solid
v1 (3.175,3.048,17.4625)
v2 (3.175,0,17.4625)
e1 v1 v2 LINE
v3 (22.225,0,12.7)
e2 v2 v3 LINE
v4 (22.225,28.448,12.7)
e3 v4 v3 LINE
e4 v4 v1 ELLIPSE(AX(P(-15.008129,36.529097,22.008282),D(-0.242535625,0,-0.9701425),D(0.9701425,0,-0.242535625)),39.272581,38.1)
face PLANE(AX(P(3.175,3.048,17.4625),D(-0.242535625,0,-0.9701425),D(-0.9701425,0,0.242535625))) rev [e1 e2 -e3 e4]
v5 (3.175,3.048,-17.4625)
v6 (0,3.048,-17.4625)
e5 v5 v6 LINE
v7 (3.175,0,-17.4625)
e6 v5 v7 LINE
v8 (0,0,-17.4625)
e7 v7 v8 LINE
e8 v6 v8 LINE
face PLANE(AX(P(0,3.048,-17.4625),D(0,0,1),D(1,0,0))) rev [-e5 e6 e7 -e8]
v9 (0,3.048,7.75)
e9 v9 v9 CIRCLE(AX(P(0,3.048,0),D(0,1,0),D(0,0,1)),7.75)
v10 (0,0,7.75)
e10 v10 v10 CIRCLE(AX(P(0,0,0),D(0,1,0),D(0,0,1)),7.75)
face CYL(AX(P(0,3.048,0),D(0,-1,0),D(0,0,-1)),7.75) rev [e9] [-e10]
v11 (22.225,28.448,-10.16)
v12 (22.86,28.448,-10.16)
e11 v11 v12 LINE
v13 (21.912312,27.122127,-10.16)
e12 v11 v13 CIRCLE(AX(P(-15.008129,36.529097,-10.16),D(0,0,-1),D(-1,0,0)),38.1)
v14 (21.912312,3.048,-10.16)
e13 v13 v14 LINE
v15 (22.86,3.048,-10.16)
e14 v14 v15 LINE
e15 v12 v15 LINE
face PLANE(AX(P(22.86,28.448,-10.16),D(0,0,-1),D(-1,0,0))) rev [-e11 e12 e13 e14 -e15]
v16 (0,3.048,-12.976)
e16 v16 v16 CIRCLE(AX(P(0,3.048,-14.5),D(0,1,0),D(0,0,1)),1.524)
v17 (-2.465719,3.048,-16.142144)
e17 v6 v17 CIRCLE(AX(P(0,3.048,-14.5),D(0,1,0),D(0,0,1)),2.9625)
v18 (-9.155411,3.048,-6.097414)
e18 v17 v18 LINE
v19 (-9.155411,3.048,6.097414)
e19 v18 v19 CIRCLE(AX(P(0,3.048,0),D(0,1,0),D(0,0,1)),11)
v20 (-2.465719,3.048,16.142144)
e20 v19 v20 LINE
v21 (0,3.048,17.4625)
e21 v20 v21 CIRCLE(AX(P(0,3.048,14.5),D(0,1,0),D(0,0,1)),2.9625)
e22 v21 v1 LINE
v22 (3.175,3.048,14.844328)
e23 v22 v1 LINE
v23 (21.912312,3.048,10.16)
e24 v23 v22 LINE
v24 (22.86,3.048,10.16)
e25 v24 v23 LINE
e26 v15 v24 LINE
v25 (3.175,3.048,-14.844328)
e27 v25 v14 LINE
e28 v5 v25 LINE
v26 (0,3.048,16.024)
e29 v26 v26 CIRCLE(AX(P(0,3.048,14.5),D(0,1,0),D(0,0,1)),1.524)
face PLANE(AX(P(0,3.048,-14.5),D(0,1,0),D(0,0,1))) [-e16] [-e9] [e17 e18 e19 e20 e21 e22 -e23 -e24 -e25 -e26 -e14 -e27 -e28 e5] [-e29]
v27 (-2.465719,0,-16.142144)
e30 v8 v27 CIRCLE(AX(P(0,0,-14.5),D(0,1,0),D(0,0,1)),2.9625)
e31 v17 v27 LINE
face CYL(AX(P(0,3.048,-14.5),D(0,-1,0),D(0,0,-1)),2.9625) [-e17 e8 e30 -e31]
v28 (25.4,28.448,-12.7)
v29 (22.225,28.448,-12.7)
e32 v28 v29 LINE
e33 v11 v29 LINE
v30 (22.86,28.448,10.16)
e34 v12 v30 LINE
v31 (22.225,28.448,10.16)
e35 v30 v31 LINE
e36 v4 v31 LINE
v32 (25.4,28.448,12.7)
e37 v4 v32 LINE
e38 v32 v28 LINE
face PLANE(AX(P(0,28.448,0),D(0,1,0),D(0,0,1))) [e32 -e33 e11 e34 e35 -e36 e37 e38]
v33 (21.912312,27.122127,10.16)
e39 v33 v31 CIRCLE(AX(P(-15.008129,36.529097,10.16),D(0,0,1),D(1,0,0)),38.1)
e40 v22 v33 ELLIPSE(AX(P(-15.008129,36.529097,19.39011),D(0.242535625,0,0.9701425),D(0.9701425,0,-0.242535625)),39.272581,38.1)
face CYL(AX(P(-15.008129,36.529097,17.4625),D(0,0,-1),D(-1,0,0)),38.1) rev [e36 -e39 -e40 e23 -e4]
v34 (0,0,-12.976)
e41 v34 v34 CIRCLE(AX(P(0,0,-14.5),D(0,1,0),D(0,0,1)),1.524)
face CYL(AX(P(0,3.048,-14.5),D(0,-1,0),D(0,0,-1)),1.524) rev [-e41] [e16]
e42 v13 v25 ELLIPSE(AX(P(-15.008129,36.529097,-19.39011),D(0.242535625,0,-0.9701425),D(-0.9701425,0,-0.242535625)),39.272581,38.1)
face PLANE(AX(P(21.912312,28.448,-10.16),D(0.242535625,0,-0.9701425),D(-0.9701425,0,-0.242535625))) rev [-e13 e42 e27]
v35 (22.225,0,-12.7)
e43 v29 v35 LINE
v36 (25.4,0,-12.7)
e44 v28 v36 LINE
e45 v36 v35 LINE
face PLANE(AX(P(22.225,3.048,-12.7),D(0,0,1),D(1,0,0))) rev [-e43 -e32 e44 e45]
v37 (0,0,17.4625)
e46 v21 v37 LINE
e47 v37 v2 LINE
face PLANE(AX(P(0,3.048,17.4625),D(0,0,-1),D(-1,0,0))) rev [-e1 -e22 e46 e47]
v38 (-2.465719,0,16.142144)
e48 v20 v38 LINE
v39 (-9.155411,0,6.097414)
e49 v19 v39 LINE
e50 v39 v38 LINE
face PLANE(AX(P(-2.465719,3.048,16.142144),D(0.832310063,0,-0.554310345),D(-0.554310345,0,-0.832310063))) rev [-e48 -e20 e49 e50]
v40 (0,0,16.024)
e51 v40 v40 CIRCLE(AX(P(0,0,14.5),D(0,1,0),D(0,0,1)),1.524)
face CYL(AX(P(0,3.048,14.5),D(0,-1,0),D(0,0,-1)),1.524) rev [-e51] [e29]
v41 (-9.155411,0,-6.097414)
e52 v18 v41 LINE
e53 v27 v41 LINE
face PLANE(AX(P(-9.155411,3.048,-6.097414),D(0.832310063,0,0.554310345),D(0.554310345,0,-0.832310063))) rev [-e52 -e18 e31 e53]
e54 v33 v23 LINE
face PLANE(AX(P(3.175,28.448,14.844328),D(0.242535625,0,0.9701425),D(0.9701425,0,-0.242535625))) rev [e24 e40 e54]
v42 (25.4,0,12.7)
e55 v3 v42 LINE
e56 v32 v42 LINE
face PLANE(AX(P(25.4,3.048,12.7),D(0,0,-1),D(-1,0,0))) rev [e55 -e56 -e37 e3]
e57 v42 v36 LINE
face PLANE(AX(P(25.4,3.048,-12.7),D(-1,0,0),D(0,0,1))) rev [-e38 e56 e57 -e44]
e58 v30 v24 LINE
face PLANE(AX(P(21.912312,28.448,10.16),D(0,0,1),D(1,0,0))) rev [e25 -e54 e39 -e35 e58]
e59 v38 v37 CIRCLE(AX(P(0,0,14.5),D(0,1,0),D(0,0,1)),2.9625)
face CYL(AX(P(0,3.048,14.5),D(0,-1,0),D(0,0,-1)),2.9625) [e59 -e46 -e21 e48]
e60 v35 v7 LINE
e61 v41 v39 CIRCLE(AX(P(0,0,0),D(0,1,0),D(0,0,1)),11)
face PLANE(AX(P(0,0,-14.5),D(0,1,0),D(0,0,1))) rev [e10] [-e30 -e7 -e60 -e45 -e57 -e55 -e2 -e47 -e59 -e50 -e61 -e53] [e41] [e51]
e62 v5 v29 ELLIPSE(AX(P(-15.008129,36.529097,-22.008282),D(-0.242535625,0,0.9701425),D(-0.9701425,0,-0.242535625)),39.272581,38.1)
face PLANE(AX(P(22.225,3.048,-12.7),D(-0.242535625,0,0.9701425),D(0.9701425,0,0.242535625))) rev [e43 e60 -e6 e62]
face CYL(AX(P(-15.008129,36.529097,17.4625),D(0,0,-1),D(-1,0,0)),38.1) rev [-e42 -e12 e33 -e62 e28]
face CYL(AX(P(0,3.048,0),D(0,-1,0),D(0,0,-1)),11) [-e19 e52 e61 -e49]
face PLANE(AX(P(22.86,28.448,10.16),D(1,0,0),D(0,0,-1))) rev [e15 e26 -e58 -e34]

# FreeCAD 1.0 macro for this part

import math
import FreeCAD as App
import Part
import Sketcher
Q = App.Units.Quantity


def add_polygon(sketch, points):
    """Adds a closed chain of lines whose ends are joined by coincident constraints."""
    first, n = sketch.GeometryCount, len(points)
    for a, b in zip(points, points[1:] + points[:1]):
        sketch.addGeometry(Part.LineSegment(App.Vector(*a, 0), App.Vector(*b, 0)), False)
    for i in range(n):
        sketch.addConstraint(Sketcher.Constraint("Coincident", first + i, 2, first + (i + 1) % n, 1))

doc = App.newDocument("Part")
body = doc.addObject("PartDesign::Body", "Body")

# Sketch on XZ plane
sketch1 = doc.addObject("Sketcher::SketchObject", "Sketch")
body.addObject(sketch1)
sketch1.AttachmentSupport = (doc.XZ_Plane, [""])
sketch1.MapMode = "FlatFace"
sketch1.addGeometry(Part.LineSegment(App.Vector(25.4, 12.7, 0), App.Vector(25.4, -12.7, 0)), False)
sketch1.addGeometry(Part.LineSegment(App.Vector(25.4, -12.7, 0), App.Vector(22.225, -12.7, 0)), False)
sketch1.addGeometry(Part.LineSegment(App.Vector(22.225, -12.7, 0), App.Vector(3.175, -17.4625, 0)), False)
sketch1.addGeometry(Part.LineSegment(App.Vector(3.175, -17.4625, 0), App.Vector(0, -17.4625, 0)), False)
sketch1.addGeometry(Part.ArcOfCircle(Part.Circle(App.Vector(0, -14.5, 0), App.Vector(0, 0, 1), 2.9625), math.radians(-146.336774), math.radians(-90)), False)
sketch1.addGeometry(Part.LineSegment(App.Vector(-2.465719, -16.142144, 0), App.Vector(-9.155411, -6.097414, 0)), False)
sketch1.addGeometry(Part.ArcOfCircle(Part.Circle(App.Vector(0, 0, 0), App.Vector(0, 0, 1), 11), math.radians(146.336774), math.radians(213.663226)), False)
sketch1.addGeometry(Part.LineSegment(App.Vector(-9.155411, 6.097414, 0), App.Vector(-2.465719, 16.142144, 0)), False)
sketch1.addGeometry(Part.ArcOfCircle(Part.Circle(App.Vector(0, 14.5, 0), App.Vector(0, 0, 1), 2.9625), math.radians(90), math.radians(146.336774)), False)
sketch1.addGeometry(Part.LineSegment(App.Vector(0, 17.4625, 0), App.Vector(3.175, 17.4625, 0)), False)
sketch1.addGeometry(Part.LineSegment(App.Vector(3.175, 17.4625, 0), App.Vector(22.225, 12.7, 0)), False)
sketch1.addGeometry(Part.LineSegment(App.Vector(22.225, 12.7, 0), App.Vector(25.4, 12.7, 0)), False)
sketch1.addGeometry(Part.Circle(App.Vector(0, 14.5, 0), App.Vector(0, 0, 1), 1.524), False)
sketch1.addGeometry(Part.Circle(App.Vector(0, 0, 0), App.Vector(0, 0, 1), 7.75), False)
sketch1.addGeometry(Part.Circle(App.Vector(0, -14.5, 0), App.Vector(0, 0, 1), 1.524), False)
sketch1.addConstraint(Sketcher.Constraint("Coincident", 0, 2, 1, 1))
sketch1.addConstraint(Sketcher.Constraint("Coincident", 1, 2, 2, 1))
sketch1.addConstraint(Sketcher.Constraint("Coincident", 2, 2, 3, 1))
sketch1.addConstraint(Sketcher.Constraint("Tangent", 3, 2, 4, 2))
sketch1.addConstraint(Sketcher.Constraint("Tangent", 4, 1, 5, 1))
sketch1.addConstraint(Sketcher.Constraint("Tangent", 5, 2, 6, 2))
sketch1.addConstraint(Sketcher.Constraint("Tangent", 6, 1, 7, 1))
sketch1.addConstraint(Sketcher.Constraint("Tangent", 7, 2, 8, 2))
sketch1.addConstraint(Sketcher.Constraint("Tangent", 8, 1, 9, 1))
sketch1.addConstraint(Sketcher.Constraint("Coincident", 9, 2, 10, 1))
sketch1.addConstraint(Sketcher.Constraint("Coincident", 10, 2, 11, 1))
sketch1.addConstraint(Sketcher.Constraint("Coincident", 11, 2, 0, 1))
sketch1.addConstraint(Sketcher.Constraint("Vertical", 0))
sketch1.addConstraint(Sketcher.Constraint("Horizontal", 1))
sketch1.addConstraint(Sketcher.Constraint("Horizontal", 3))
sketch1.addConstraint(Sketcher.Constraint("Horizontal", 9))
sketch1.addConstraint(Sketcher.Constraint("Horizontal", 11))
sketch1.addConstraint(Sketcher.Constraint("Coincident", 6, 3, -1, 1))
sketch1.addConstraint(Sketcher.Constraint("Coincident", 13, 3, -1, 1))
sketch1.addConstraint(Sketcher.Constraint("Coincident", 12, 3, 8, 3))
sketch1.addConstraint(Sketcher.Constraint("Coincident", 14, 3, 4, 3))
sketch1.addConstraint(Sketcher.Constraint("Equal", 4, 8))
sketch1.addConstraint(Sketcher.Constraint("Equal", 12, 14))
sketch1.addConstraint(Sketcher.Constraint("Symmetric", 4, 3, 8, 3, -1, 1))
sketch1.addConstraint(Sketcher.Constraint("Symmetric", 1, 2, 10, 2, -1))
sketch1.addConstraint(Sketcher.Constraint("PointOnObject", 4, 3, -2))
sketch1.addConstraint(Sketcher.Constraint("Vertical", 2, 2, 9, 2))
sketch1.addConstraint(Sketcher.Constraint("Equal", 1, 3))
sketch1.addConstraint(Sketcher.Constraint("Diameter", 12, Q("0.12 in")))
sketch1.addConstraint(Sketcher.Constraint("DistanceY", 0, 2, 0, 1, Q("1 in")))
sketch1.addConstraint(Sketcher.Constraint("DistanceX", -1, 1, 0, 2, Q("1 in")))
sketch1.addConstraint(Sketcher.Constraint("Diameter", 13, Q("15.5 mm")))
sketch1.addConstraint(Sketcher.Constraint("DistanceX", 1, 2, 1, 1, Q("0.125 in")))
sketch1.addConstraint(Sketcher.Constraint("Radius", 4, Q("2.9625 mm")))
sketch1.addConstraint(Sketcher.Constraint("Radius", 6, Q("11 mm")))
sketch1.addConstraint(Sketcher.Constraint("DistanceY", 2, 2, -1, 1, Q("0.6875 in")))
pad1 = doc.addObject("PartDesign::Pad", "Pad")
body.addObject(pad1)
pad1.Profile = sketch1
pad1.Length = Q("0.12 in")
pad1.Reversed = True

# Sketch on XZ plane
sketch2 = doc.addObject("Sketcher::SketchObject", "Sketch001")
body.addObject(sketch2)
sketch2.AttachmentSupport = (doc.XZ_Plane, [""])
sketch2.MapMode = "FlatFace"
sketch2.AttachmentOffset = App.Placement(App.Vector(0, 0, -0.12 * 25.4), App.Rotation())
add_polygon(sketch2, [(3.175, -17.4625), (3.175, -14.844328), (21.912312, -10.16), (22.86, -10.16), (22.86, 10.16), (21.912312, 10.16), (3.175, 14.844328), (3.175, 17.4625), (22.225, 12.7), (25.4, 12.7), (25.4, -12.7), (22.225, -12.7)])  # lines 0-11
sketch2.addConstraint(Sketcher.Constraint("Vertical", 0))
sketch2.addConstraint(Sketcher.Constraint("Horizontal", 2))
sketch2.addConstraint(Sketcher.Constraint("Vertical", 3))
sketch2.addConstraint(Sketcher.Constraint("Horizontal", 4))
sketch2.addConstraint(Sketcher.Constraint("Vertical", 6))
sketch2.addConstraint(Sketcher.Constraint("Horizontal", 8))
sketch2.addConstraint(Sketcher.Constraint("Vertical", 9))
sketch2.addConstraint(Sketcher.Constraint("Horizontal", 10))
sketch2.addConstraint(Sketcher.Constraint("Symmetric", 1, 2, 4, 2, -1))
sketch2.addConstraint(Sketcher.Constraint("Symmetric", 0, 2, 5, 2, -1))
sketch2.addConstraint(Sketcher.Constraint("Symmetric", 7, 2, 10, 2, -1))
sketch2.addConstraint(Sketcher.Constraint("Parallel", 5, 7))
sketch2.addConstraint(Sketcher.Constraint("Parallel", 1, 11))
sketch2.addConstraint(Sketcher.Constraint("DistanceY", 9, 2, 9, 1, Q("1 in")))
sketch2.addConstraint(Sketcher.Constraint("DistanceY", 3, 1, 3, 2, Q("0.8 in")))
sketch2.addConstraint(Sketcher.Constraint("DistanceX", -1, 1, 8, 2, Q("1 in")))
sketch2.addConstraint(Sketcher.Constraint("DistanceX", -1, 1, 2, 2, Q("0.9 in")))
sketch2.addConstraint(Sketcher.Constraint("DistanceX", 8, 1, 8, 2, Q("0.125 in")))
sketch2.addConstraint(Sketcher.Constraint("DistanceX", 5, 2, 7, 2, Q("0.75 in")))
sketch2.addConstraint(Sketcher.Constraint("DistanceY", -1, 1, 6, 2, Q("0.6875 in")))
sketch2.addConstraint(Sketcher.Constraint("DistanceX", 2, 1, 2, 2, Q("0.947688 mm")))
pad2 = doc.addObject("PartDesign::Pad", "Pad001")
body.addObject(pad2)
pad2.Profile = sketch2
pad2.Length = Q("1 in")
pad2.Reversed = True

# Sketch on XY plane
sketch3 = doc.addObject("Sketcher::SketchObject", "Sketch002")
body.addObject(sketch3)
sketch3.AttachmentSupport = (doc.XY_Plane, [""])
sketch3.MapMode = "FlatFace"
sketch3.AttachmentOffset = App.Placement(App.Vector(0, 0, -0.6875 * 25.4), App.Rotation())
sketch3.addGeometry(Part.LineSegment(App.Vector(3.175, 28.448, 0), App.Vector(22.225, 28.448, 0)), False)
sketch3.addGeometry(Part.ArcOfCircle(Part.Circle(App.Vector(-15.008129, 36.529097, 0), App.Vector(0, 0, 1), 38.1), math.radians(-61.494216), math.radians(-12.245579)), False)
sketch3.addGeometry(Part.LineSegment(App.Vector(3.175, 3.048, 0), App.Vector(3.175, 28.448, 0)), False)
sketch3.addConstraint(Sketcher.Constraint("Coincident", 0, 2, 1, 2))
sketch3.addConstraint(Sketcher.Constraint("Coincident", 1, 1, 2, 1))
sketch3.addConstraint(Sketcher.Constraint("Coincident", 2, 2, 0, 1))
sketch3.addConstraint(Sketcher.Constraint("Horizontal", 0))
sketch3.addConstraint(Sketcher.Constraint("Vertical", 2))
sketch3.addConstraint(Sketcher.Constraint("Radius", 1, Q("1.5 in")))
sketch3.addConstraint(Sketcher.Constraint("DistanceY", 2, 1, 2, 2, Q("1 in")))
sketch3.addConstraint(Sketcher.Constraint("DistanceX", 0, 1, 0, 2, Q("0.75 in")))
sketch3.addConstraint(Sketcher.Constraint("DistanceY", -1, 1, 0, 2, Q("1.12 in")))
sketch3.addConstraint(Sketcher.Constraint("DistanceX", -1, 1, 0, 2, Q("0.875 in")))
pocket1 = doc.addObject("PartDesign::Pocket", "Pocket")
body.addObject(pocket1)
pocket1.Profile = sketch3
pocket1.Type = "ThroughAll"
pocket1.Reversed = True

doc.recompute()
